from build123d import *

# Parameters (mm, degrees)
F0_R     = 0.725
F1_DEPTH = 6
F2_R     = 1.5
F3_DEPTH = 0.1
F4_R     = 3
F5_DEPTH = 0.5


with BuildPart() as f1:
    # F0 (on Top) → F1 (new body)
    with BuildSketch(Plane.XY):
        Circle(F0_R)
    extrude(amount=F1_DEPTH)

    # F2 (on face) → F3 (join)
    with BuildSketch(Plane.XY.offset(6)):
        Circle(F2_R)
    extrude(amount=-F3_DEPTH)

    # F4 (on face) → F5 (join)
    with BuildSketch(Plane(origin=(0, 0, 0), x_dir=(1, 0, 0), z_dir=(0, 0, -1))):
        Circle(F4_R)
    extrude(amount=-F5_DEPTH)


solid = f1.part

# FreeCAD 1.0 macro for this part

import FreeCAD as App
import Part
import Sketcher
from FreeCAD import Vector

doc = App.newDocument("Part")
body = doc.addObject("PartDesign::Body", "Body")

# Sketch on XY plane
sketch1 = body.newObject("Sketcher::SketchObject", "Sketch")
sketch1.AttachmentSupport = (doc.getObject("XY_Plane"), [""])
sketch1.MapMode = "FlatFace"
sketch1.addGeometry(Part.Circle(Vector(0, 0, 0), Vector(0, 0, 1), 0.725), False)
sketch1.addConstraint(Sketcher.Constraint("Coincident", 0, 3, -1, 1))
sketch1.addConstraint(Sketcher.Constraint("Diameter", 0, 1.45))
pad1 = body.newObject("PartDesign::Pad", "Pad")
pad1.Profile = sketch1
pad1.Length = 6

# Sketch on XY plane
sketch2 = body.newObject("Sketcher::SketchObject", "Sketch001")
sketch2.AttachmentSupport = (doc.getObject("XY_Plane"), [""])
sketch2.MapMode = "FlatFace"
sketch2.AttachmentOffset = App.Placement(Vector(0, 0, 6), App.Rotation())
sketch2.addGeometry(Part.Circle(Vector(0, 0, 0), Vector(0, 0, 1), 1.5), False)
sketch2.addConstraint(Sketcher.Constraint("Coincident", 0, 3, -1, 1))
sketch2.addConstraint(Sketcher.Constraint("Diameter", 0, 3.0))
pad2 = body.newObject("PartDesign::Pad", "Pad001")
pad2.Profile = sketch2
pad2.Length = 0.1
pad2.Reversed = True

# Sketch on XY plane
sketch3 = body.newObject("Sketcher::SketchObject", "Sketch002")
sketch3.AttachmentSupport = (doc.getObject("XY_Plane"), [""])
sketch3.MapMode = "FlatFace"
sketch3.addGeometry(Part.Circle(Vector(0, 0, 0), Vector(0, 0, 1), 3), False)
sketch3.addConstraint(Sketcher.Constraint("Coincident", 0, 3, -1, 1))
sketch3.addConstraint(Sketcher.Constraint("Diameter", 0, 6.0))
pad3 = body.newObject("PartDesign::Pad", "Pad002")
pad3.Profile = sketch3
pad3.Length = 0.5

doc.recompute()
